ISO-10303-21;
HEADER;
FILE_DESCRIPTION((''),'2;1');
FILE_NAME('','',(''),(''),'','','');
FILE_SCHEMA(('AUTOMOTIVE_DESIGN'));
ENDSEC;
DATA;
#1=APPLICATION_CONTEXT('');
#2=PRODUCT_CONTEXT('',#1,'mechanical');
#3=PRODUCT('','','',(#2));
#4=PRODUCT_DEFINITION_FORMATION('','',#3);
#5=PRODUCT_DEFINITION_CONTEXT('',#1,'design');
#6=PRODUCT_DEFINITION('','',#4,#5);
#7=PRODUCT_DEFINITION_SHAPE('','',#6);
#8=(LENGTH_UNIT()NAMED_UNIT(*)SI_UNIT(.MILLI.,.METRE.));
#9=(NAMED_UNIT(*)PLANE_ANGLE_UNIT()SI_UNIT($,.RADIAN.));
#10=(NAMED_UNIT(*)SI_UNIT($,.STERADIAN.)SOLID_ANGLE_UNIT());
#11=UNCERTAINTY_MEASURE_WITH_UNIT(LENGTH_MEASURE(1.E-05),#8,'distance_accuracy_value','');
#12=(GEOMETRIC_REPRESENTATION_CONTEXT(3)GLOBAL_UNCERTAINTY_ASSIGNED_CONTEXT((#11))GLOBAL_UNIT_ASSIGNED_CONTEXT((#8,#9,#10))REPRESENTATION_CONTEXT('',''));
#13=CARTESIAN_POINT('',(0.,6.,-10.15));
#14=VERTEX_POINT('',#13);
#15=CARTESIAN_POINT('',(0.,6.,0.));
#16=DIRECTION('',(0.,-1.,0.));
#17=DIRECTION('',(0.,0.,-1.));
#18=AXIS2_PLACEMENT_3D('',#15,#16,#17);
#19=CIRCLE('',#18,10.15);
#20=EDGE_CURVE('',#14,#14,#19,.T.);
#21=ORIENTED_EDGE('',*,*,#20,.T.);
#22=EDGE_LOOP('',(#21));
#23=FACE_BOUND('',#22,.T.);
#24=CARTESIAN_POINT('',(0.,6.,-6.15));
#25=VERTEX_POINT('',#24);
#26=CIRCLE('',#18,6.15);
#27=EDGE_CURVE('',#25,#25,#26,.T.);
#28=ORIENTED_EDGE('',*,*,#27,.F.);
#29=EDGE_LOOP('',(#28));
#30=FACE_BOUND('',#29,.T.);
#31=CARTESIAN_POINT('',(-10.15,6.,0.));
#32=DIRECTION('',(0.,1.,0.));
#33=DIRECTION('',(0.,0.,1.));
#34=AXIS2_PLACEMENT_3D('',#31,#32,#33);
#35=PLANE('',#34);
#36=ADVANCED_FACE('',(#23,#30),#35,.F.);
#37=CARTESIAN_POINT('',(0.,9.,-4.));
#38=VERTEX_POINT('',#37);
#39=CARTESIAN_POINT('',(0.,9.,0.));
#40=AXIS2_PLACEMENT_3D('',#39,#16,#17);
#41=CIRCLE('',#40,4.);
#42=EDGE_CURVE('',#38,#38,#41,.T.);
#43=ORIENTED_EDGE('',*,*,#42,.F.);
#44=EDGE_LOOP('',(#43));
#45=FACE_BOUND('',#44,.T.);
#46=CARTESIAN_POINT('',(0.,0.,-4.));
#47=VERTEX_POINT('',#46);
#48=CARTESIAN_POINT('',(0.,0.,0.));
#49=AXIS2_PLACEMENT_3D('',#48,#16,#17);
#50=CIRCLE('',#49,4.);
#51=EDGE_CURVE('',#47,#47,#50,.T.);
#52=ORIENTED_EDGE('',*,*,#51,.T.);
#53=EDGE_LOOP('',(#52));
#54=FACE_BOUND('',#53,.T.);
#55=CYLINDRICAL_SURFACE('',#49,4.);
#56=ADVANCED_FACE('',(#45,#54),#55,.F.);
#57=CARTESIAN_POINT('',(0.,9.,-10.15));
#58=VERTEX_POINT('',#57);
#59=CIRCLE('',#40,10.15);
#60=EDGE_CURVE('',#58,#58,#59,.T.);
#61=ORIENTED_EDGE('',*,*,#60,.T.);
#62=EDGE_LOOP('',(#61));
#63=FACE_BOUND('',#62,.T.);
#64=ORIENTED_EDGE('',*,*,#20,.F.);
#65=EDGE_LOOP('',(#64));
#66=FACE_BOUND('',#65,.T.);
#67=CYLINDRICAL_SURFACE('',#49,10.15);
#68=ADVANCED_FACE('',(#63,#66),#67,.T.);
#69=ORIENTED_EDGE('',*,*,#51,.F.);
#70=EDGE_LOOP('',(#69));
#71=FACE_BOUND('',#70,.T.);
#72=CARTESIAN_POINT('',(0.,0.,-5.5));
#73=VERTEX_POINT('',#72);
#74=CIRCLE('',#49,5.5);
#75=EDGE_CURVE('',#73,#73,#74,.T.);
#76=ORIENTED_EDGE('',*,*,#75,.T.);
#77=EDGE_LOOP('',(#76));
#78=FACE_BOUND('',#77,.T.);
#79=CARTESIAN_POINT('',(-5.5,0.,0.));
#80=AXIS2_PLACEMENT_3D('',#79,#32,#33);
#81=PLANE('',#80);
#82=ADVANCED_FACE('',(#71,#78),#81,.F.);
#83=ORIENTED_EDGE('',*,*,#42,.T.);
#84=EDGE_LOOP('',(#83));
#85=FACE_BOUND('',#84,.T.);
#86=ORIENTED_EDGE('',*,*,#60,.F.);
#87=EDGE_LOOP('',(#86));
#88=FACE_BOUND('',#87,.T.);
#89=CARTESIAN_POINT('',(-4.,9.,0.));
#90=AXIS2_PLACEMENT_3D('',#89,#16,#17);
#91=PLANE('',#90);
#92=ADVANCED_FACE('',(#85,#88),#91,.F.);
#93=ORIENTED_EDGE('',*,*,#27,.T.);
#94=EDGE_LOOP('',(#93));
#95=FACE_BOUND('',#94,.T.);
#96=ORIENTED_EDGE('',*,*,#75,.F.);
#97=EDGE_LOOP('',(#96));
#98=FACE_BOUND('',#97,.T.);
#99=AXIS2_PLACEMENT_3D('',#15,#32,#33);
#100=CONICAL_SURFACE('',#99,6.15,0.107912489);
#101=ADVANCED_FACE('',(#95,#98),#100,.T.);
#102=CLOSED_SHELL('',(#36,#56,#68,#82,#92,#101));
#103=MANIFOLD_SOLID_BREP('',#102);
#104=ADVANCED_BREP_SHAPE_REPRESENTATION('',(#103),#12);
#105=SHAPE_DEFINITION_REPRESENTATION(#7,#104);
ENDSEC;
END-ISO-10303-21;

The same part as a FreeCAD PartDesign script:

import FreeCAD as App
import Part
import Sketcher

doc = App.newDocument("Part")
body = doc.addObject("PartDesign::Body", "Body")

# Sketch on XY plane
sketch1 = body.newObject("Sketcher::SketchObject", "Sketch")
sketch1.AttachmentSupport = (doc.getObject("XY_Plane"), [""])
sketch1.MapMode = "FlatFace"
sketch1.addGeometry([
    Part.LineSegment(App.Vector(-4, 9, 0), App.Vector(-10.2, 9, 0)),  # 0
    Part.LineSegment(App.Vector(-10.2, 9, 0), App.Vector(-10.2, 6, 0)),  # 1
    Part.LineSegment(App.Vector(-10.2, 6, 0), App.Vector(-6.2, 6, 0)),  # 2
    Part.LineSegment(App.Vector(-6.2, 6, 0), App.Vector(-5.5, 0, 0)),  # 3
    Part.LineSegment(App.Vector(-5.5, 0, 0), App.Vector(-4, 0, 0)),  # 4
    Part.LineSegment(App.Vector(-4, 0, 0), App.Vector(-4, 9, 0)),  # 5
], False)
sketch1.addConstraint([
    Sketcher.Constraint("Coincident", 0, 2, 1, 1),
    Sketcher.Constraint("Coincident", 1, 2, 2, 1),
    Sketcher.Constraint("Coincident", 2, 2, 3, 1),
    Sketcher.Constraint("Coincident", 3, 2, 4, 1),
    Sketcher.Constraint("Coincident", 4, 2, 5, 1),
    Sketcher.Constraint("Coincident", 5, 2, 0, 1),
    Sketcher.Constraint("Horizontal", 0),
    Sketcher.Constraint("Vertical", 1),
    Sketcher.Constraint("Horizontal", 2),
    Sketcher.Constraint("Horizontal", 4),
    Sketcher.Constraint("Vertical", 5),
    Sketcher.Constraint("PointOnObject", 3, 2, -1),
    Sketcher.Constraint("DistanceX", 2, 1, 2, 2, 4.0),
    Sketcher.Constraint("DistanceY", 1, 2, 1, 1, 3.0),
    Sketcher.Constraint("DistanceY", 5, 1, 5, 2, 9.0),
    Sketcher.Constraint("DistanceX", 4, 1, 4, 2, 1.5),
    Sketcher.Constraint("DistanceX", 4, 2, -1, 1, 4.0),
    Sketcher.Constraint("DistanceX", 0, 2, 0, 1, 6.15),
])
revolution = body.newObject("PartDesign::Revolution", "Revolution")
revolution.Profile = sketch1
revolution.ReferenceAxis = (sketch1, ["V_Axis"])
revolution.Angle = 360

doc.recompute()
